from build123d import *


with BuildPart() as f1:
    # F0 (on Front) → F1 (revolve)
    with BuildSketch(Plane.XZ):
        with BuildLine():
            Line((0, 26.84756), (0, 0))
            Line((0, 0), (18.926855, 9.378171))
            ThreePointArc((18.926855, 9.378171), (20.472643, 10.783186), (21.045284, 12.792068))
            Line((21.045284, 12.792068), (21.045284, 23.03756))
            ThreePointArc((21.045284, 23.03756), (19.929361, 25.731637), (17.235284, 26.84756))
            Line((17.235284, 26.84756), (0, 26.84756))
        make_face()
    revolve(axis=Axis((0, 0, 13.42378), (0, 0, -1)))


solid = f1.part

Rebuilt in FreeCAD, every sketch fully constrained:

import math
import FreeCAD as App
import Part
import Sketcher
from FreeCAD import Vector
Q = App.Units.Quantity

doc = App.newDocument("Part")
body = doc.addObject("PartDesign::Body", "Body")

sketch1 = doc.addObject("Sketcher::SketchObject", "Sketch")
body.addObject(sketch1)
sketch1.AttachmentSupport = (doc.XZ_Plane, [""])
sketch1.MapMode = "FlatFace"
sketch1.addGeometry([
    Part.LineSegment(Vector(0, 26.8, 0), Vector(0, 0, 0)),
    Part.LineSegment(Vector(0, 0, 0), Vector(18.9, 9.4, 0)),
    Part.ArcOfCircle(Part.Circle(Vector(17.2, 12.8, 0), Vector(0, 0, 1), 3.8), math.radians(-64), math.radians(0)),
    Part.LineSegment(Vector(21, 12.8, 0), Vector(21, 23, 0)),
    Part.ArcOfCircle(Part.Circle(Vector(17.2, 23, 0), Vector(0, 0, 1), 3.8), math.radians(0), math.radians(90)),
    Part.LineSegment(Vector(17.2, 26.8, 0), Vector(0, 26.8, 0)),
], False)
sketch1.addConstraint([
    Sketcher.Constraint("Coincident", 0, 2, 1, 1),
    Sketcher.Constraint("Tangent", 1, 2, 2, 1),
    Sketcher.Constraint("Tangent", 2, 2, 3, 1),
    Sketcher.Constraint("Tangent", 3, 2, 4, 1),
    Sketcher.Constraint("Tangent", 4, 2, 5, 1),
    Sketcher.Constraint("Coincident", 5, 2, 0, 1),
    Sketcher.Constraint("Vertical", 0),
    Sketcher.Constraint("Vertical", 3),
    Sketcher.Constraint("Horizontal", 5),
    Sketcher.Constraint("Coincident", 0, 2, -1, 1),
    Sketcher.Constraint("Radius", 2, Q("0.1500001 in")),
    Sketcher.Constraint("Radius", 4, Q("0.15 in")),
    Sketcher.Constraint("DistanceY", 0, 2, 0, 1, Q("26.84756 mm")),
    Sketcher.Constraint("DistanceY", 3, 1, 3, 2, Q("10.245492 mm")),
    Sketcher.Constraint("DistanceX", 5, 2, 5, 1, Q("17.235284 mm")),
])
revolution = doc.addObject("PartDesign::Revolution", "Revolution")
body.addObject(revolution)
revolution.Profile = sketch1
revolution.ReferenceAxis = (sketch1, ["V_Axis"])
revolution.Angle = 360

doc.recompute()
